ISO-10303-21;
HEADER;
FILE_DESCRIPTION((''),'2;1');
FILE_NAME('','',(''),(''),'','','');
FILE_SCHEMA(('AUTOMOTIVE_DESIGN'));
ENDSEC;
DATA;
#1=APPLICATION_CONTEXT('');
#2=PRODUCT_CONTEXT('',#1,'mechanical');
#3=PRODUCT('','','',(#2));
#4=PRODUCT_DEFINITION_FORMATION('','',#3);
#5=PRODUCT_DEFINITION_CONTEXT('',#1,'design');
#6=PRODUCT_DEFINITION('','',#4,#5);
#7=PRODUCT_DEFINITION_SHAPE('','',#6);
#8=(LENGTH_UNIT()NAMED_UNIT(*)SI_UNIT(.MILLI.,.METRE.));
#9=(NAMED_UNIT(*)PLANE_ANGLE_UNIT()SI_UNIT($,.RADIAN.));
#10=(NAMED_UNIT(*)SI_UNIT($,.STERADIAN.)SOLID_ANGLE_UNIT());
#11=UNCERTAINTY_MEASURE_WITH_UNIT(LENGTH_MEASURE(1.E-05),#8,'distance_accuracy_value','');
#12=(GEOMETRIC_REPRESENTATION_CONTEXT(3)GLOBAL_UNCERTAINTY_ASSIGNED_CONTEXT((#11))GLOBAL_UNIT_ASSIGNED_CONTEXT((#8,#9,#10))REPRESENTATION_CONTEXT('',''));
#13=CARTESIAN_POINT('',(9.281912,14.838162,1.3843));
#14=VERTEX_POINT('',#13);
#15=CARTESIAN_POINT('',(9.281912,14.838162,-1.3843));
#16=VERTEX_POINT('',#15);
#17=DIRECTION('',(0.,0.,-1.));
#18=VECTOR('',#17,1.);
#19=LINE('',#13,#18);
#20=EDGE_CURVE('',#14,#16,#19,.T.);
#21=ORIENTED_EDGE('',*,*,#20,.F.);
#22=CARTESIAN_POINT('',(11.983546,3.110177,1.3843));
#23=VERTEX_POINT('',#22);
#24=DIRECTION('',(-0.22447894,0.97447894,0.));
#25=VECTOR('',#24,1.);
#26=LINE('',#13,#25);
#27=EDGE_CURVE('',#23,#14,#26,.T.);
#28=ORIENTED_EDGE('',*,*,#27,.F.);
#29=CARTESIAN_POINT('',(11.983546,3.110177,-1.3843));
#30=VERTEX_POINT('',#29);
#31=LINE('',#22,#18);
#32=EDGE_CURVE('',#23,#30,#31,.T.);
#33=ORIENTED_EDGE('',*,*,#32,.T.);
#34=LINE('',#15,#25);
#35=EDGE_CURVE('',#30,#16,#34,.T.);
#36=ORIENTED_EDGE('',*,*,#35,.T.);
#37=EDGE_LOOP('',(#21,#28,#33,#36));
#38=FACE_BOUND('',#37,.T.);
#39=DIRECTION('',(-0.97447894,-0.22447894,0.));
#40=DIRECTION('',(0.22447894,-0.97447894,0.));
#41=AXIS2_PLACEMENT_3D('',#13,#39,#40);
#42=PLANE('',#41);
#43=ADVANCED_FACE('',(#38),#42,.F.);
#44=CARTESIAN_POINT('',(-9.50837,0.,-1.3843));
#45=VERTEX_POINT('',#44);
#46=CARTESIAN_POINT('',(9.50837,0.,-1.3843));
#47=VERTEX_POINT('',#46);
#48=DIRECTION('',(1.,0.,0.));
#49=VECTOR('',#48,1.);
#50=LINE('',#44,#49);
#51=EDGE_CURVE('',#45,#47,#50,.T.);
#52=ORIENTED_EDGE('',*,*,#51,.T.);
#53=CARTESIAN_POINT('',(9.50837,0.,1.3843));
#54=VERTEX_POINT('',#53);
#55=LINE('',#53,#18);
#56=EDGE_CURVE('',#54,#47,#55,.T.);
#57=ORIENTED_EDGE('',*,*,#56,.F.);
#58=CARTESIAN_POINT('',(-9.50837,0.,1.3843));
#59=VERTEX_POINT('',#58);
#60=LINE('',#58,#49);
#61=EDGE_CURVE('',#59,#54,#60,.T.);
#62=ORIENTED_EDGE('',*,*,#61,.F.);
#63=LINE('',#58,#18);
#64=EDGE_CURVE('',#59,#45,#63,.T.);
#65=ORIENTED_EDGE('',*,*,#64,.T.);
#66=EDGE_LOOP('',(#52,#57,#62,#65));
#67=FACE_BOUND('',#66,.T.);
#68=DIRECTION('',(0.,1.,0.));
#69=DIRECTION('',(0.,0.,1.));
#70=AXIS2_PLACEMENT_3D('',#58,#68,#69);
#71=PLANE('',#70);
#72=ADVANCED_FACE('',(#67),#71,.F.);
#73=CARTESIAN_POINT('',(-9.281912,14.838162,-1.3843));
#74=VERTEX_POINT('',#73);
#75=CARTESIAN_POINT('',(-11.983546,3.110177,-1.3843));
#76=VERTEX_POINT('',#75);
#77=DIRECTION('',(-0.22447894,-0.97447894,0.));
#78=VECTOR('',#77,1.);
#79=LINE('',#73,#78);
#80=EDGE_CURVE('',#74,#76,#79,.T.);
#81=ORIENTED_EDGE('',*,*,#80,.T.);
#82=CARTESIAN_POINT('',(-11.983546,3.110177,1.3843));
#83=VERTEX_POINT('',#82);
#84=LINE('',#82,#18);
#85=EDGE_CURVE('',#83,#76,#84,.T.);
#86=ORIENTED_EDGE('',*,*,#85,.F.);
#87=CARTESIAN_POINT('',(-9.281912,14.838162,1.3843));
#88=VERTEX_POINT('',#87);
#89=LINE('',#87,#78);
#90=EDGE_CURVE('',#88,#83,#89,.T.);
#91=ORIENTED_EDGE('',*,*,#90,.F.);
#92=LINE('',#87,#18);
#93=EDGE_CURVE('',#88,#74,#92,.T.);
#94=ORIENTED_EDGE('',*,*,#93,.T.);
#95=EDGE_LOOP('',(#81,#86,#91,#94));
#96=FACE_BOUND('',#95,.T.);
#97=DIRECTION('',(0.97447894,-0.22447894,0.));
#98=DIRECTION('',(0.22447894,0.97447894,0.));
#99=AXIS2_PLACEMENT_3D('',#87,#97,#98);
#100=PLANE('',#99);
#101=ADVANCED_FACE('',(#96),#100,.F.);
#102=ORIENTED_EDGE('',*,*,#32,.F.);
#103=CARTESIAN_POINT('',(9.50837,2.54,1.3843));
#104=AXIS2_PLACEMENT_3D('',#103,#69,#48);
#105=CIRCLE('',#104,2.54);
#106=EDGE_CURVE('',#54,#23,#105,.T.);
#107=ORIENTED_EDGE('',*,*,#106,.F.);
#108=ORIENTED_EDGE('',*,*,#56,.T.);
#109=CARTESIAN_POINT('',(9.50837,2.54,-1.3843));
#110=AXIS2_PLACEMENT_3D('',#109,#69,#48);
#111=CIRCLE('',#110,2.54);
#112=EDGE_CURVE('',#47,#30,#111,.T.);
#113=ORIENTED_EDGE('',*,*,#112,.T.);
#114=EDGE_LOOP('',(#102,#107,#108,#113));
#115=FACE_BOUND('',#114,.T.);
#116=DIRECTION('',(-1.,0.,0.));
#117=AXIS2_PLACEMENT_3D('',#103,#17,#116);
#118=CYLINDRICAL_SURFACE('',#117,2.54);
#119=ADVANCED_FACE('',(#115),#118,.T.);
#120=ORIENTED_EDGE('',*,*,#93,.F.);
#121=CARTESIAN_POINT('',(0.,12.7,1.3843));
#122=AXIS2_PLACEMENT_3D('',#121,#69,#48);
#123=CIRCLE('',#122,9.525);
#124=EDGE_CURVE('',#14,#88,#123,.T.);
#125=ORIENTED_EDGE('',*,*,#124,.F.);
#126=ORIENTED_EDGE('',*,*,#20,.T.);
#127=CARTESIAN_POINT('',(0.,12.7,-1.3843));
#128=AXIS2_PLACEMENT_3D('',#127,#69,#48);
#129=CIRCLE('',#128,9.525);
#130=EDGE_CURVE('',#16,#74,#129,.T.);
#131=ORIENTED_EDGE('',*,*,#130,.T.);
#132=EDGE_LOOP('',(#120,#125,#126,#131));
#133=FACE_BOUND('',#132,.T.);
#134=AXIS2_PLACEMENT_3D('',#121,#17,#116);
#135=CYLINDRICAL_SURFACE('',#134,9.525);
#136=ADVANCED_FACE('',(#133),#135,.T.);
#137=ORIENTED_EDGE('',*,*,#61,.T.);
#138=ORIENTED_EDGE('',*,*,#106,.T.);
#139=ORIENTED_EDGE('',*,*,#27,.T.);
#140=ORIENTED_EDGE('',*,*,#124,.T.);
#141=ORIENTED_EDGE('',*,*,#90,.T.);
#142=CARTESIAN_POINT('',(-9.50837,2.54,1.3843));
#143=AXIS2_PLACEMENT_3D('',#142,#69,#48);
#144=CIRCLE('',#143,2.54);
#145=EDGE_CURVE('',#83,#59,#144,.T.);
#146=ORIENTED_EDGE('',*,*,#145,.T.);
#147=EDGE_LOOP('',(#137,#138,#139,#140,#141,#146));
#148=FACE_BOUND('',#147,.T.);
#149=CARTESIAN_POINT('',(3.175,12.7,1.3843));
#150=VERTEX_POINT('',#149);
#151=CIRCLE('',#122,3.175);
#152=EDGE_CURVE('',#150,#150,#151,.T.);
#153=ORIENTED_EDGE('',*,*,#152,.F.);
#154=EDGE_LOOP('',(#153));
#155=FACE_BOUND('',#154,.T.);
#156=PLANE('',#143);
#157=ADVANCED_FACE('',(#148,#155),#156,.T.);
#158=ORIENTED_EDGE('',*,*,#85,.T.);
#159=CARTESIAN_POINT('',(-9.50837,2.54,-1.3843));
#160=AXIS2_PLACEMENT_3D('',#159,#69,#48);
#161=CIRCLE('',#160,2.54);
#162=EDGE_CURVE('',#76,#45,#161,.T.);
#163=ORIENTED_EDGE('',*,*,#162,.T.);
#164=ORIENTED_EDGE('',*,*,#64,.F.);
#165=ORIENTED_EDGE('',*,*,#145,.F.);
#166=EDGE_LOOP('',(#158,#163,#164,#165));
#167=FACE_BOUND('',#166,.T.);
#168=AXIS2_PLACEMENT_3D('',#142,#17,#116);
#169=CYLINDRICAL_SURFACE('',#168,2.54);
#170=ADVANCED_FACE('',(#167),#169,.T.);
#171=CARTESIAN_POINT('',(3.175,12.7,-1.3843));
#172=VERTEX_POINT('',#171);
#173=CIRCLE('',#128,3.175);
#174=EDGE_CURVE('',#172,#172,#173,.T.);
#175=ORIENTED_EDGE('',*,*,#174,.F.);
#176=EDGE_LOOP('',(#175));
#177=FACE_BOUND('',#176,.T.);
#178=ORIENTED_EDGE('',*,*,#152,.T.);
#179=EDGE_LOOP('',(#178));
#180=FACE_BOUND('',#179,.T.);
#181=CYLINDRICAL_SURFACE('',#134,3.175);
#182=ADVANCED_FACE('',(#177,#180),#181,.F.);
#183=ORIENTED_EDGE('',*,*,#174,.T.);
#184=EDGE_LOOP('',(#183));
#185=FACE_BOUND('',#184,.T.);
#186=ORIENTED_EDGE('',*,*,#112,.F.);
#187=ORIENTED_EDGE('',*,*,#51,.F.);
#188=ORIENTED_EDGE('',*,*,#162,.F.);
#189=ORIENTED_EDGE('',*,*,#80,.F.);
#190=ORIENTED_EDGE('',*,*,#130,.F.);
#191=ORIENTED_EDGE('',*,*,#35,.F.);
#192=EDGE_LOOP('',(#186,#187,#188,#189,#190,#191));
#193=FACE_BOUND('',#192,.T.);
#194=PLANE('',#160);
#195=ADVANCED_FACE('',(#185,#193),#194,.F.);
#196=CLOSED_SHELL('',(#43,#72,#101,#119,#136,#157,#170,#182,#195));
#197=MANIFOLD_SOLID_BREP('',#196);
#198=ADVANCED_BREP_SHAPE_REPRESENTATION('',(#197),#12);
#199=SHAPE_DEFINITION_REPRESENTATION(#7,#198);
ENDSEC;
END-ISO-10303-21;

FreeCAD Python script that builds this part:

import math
import FreeCAD as App
import Part
import Sketcher
Q = App.Units.Quantity

doc = App.newDocument("Part")
body = doc.addObject("PartDesign::Body", "Body")

# Sketch on XY plane
sketch1 = body.newObject("Sketcher::SketchObject", "Sketch")
sketch1.AttachmentSupport = (doc.getObject("XY_Plane"), [""])
sketch1.MapMode = "FlatFace"
sketch1.addGeometry([
    Part.LineSegment(App.Vector(-9.3, 14.8, 0), App.Vector(-12, 3.1, 0)),  # 0
    Part.ArcOfCircle(Part.Circle(App.Vector(-9.5, 2.5, 0), App.Vector(0, 0, 1), 2.5), math.radians(167), math.radians(270)),  # 1
    Part.LineSegment(App.Vector(-9.5, 0, 0), App.Vector(9.5, 0, 0)),  # 2
    Part.ArcOfCircle(Part.Circle(App.Vector(9.5, 2.5, 0), App.Vector(0, 0, 1), 2.5), math.radians(-90), math.radians(13)),  # 3
    Part.LineSegment(App.Vector(12, 3.1, 0), App.Vector(9.3, 14.8, 0)),  # 4
    Part.ArcOfCircle(Part.Circle(App.Vector(0, 12.7, 0), App.Vector(0, 0, 1), 9.5), math.radians(13), math.radians(167)),  # 5
    Part.Circle(App.Vector(0, 12.7, 0), App.Vector(0, 0, 1), 3.2),  # 6
], False)
sketch1.addConstraint([
    Sketcher.Constraint("Tangent", 0, 2, 1, 1),
    Sketcher.Constraint("Tangent", 1, 2, 2, 1),
    Sketcher.Constraint("Tangent", 2, 2, 3, 1),
    Sketcher.Constraint("Tangent", 3, 2, 4, 1),
    Sketcher.Constraint("Tangent", 4, 2, 5, 1),
    Sketcher.Constraint("Tangent", 5, 2, 0, 1),
    Sketcher.Constraint("Horizontal", 2),
    Sketcher.Constraint("Coincident", 6, 3, 5, 3),
    Sketcher.Constraint("Equal", 1, 3),
    Sketcher.Constraint("Symmetric", 1, 2, 2, 2, -1, 1),
    Sketcher.Constraint("PointOnObject", 5, 3, -2),
    Sketcher.Constraint("Radius", 1, Q("0.1 in")),
    Sketcher.Constraint("Diameter", 6, Q("0.25 in")),
    Sketcher.Constraint("Radius", 5, Q("0.375 in")),
    Sketcher.Constraint("DistanceY", -1, 1, 5, 3, Q("0.5 in")),
    Sketcher.Constraint("DistanceX", 2, 1, 2, 2, Q("19.016739 mm")),
])
pad1 = body.newObject("PartDesign::Pad", "Pad")
pad1.Profile = sketch1
pad1.Length = Q("0.109 in")
pad1.Midplane = True

doc.recompute()
